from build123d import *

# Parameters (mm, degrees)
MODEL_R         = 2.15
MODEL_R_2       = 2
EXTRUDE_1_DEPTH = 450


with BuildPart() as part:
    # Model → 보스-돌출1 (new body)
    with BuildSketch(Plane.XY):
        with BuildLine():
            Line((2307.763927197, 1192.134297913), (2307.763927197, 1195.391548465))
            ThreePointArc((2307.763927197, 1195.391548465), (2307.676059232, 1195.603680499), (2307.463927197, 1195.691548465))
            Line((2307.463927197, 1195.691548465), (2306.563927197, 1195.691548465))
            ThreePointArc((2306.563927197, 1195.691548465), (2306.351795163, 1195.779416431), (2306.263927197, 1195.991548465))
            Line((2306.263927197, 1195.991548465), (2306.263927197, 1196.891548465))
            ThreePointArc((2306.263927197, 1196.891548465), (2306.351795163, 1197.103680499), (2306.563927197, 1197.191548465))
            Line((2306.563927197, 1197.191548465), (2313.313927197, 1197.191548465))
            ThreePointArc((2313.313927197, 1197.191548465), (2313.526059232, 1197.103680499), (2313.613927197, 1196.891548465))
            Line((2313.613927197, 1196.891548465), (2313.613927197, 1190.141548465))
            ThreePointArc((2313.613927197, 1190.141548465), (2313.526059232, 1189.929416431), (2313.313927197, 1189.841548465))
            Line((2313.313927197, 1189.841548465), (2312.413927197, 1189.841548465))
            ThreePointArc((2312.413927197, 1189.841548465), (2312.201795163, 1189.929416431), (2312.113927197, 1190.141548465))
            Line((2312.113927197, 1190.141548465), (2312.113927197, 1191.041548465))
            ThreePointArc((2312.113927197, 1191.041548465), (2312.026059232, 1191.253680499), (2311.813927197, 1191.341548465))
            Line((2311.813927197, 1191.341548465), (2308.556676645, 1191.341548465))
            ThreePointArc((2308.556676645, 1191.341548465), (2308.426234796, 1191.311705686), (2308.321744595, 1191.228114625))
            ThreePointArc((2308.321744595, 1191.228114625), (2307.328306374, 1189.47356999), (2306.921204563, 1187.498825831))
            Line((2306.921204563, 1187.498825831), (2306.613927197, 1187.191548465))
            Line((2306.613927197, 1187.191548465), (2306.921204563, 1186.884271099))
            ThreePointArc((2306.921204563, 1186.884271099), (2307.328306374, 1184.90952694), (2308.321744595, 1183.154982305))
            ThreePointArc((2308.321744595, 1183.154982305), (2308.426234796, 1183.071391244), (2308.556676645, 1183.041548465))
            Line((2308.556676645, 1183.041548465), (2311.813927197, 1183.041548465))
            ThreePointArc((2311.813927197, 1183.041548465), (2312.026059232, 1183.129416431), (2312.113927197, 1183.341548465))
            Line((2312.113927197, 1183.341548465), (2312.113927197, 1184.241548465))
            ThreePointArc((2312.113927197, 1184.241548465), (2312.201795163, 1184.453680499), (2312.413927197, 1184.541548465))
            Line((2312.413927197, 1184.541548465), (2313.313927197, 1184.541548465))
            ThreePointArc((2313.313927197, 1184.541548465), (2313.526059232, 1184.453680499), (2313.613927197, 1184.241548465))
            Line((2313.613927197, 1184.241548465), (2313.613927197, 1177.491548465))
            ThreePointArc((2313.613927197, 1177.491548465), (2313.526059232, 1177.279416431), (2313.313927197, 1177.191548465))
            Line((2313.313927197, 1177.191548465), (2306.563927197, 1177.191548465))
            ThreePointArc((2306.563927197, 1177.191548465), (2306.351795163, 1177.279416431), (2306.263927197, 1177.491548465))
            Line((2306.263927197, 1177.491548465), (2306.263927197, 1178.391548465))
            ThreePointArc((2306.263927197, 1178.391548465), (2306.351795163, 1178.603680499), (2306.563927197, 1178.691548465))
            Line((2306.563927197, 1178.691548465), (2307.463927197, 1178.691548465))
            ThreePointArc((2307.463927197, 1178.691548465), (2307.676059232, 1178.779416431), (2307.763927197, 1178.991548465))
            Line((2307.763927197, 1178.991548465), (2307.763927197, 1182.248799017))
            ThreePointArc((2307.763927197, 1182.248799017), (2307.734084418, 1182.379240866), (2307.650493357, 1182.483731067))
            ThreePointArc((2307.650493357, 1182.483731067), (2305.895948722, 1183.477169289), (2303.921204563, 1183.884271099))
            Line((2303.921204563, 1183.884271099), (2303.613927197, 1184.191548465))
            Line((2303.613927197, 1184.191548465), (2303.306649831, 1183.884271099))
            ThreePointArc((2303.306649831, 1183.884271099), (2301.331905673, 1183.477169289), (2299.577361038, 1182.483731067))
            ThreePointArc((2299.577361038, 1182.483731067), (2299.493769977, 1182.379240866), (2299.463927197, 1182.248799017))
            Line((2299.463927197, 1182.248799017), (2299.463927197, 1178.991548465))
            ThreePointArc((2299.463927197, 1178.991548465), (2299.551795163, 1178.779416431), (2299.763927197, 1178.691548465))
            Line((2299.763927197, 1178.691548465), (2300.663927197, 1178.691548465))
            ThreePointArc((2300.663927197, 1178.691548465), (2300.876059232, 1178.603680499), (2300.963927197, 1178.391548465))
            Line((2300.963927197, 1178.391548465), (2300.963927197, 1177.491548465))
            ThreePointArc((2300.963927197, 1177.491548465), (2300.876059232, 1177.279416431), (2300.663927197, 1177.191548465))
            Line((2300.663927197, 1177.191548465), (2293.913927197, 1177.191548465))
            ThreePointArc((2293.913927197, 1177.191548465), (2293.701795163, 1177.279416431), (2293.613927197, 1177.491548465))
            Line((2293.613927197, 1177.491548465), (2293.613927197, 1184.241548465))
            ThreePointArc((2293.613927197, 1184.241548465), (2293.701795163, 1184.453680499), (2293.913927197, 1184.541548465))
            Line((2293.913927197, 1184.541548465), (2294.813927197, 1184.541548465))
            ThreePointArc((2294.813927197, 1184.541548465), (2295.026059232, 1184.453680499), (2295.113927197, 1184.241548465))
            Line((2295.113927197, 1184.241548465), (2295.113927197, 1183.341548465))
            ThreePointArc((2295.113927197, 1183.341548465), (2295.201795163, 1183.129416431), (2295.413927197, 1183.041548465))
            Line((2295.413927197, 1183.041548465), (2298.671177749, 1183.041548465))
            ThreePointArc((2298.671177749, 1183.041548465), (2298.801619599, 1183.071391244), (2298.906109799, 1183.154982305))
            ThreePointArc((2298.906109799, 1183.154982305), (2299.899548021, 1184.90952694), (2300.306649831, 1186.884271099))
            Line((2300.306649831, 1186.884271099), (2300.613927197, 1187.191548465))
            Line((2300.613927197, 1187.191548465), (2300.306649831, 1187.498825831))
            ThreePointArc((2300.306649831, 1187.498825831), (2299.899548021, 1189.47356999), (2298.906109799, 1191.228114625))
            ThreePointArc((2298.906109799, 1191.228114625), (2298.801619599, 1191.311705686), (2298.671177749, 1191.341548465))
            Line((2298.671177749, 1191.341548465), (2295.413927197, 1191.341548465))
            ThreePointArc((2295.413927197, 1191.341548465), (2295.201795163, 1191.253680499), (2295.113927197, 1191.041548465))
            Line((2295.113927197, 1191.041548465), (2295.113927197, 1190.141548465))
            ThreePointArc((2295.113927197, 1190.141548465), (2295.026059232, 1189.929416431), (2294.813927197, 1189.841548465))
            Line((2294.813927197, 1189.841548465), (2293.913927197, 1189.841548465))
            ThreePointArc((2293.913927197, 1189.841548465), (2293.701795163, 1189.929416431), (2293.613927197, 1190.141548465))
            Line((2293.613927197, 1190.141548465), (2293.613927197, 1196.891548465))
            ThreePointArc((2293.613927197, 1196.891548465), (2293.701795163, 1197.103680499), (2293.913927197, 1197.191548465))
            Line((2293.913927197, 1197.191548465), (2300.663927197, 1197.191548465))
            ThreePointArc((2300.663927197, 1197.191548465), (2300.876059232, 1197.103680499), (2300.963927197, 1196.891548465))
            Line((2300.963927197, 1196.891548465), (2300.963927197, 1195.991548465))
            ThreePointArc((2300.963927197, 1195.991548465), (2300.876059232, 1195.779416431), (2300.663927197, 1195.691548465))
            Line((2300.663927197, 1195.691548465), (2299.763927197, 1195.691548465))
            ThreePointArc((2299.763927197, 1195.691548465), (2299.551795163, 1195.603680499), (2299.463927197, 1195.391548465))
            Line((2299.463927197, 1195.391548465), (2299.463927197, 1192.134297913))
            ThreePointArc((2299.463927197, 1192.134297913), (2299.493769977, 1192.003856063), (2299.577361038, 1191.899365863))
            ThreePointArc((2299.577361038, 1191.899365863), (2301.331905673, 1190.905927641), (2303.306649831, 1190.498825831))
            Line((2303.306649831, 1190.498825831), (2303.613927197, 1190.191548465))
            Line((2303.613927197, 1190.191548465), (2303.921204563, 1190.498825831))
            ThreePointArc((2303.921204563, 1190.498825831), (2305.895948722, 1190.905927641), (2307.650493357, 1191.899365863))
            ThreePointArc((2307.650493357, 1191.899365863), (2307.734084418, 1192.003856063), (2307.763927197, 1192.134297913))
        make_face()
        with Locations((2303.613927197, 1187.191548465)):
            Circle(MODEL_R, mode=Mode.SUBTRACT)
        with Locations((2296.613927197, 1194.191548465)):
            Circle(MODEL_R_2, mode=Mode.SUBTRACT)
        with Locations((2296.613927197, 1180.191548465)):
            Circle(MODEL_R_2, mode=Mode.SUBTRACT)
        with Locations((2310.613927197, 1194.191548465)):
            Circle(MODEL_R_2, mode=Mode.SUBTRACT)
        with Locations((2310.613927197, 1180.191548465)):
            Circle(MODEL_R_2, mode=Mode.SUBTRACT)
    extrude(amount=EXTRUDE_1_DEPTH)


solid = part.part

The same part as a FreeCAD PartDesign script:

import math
import FreeCAD as App
import Part
import Sketcher
from FreeCAD import Vector

doc = App.newDocument("Part")
body = doc.addObject("PartDesign::Body", "Body")

sketch1 = doc.addObject("Sketcher::SketchObject", "Sketch")
body.addObject(sketch1)
sketch1.AttachmentSupport = (doc.XY_Plane, [""])
sketch1.MapMode = "FlatFace"
sketch1.addGeometry(Part.LineSegment(Vector(2307.763927, 1195.391548, 0), Vector(2307.763927, 1192.134298, 0)), False)
sketch1.addGeometry(Part.ArcOfCircle(Part.Circle(Vector(2307.463927, 1192.134298, 0), Vector(0, 0, 1), 0.3), math.radians(-51.545921), math.radians(0)), False)
sketch1.addGeometry(Part.ArcOfCircle(Part.Circle(Vector(2303.613927, 1196.982382, 0), Vector(0, 0, 1), 6.490833), math.radians(-87.286592), math.radians(-51.545921)), False)
sketch1.addGeometry(Part.LineSegment(Vector(2303.921205, 1190.498826, 0), Vector(2303.613927, 1190.191548, 0)), False)
sketch1.addGeometry(Part.LineSegment(Vector(2303.613927, 1190.191548, 0), Vector(2303.30665, 1190.498826, 0)), False)
sketch1.addGeometry(Part.ArcOfCircle(Part.Circle(Vector(2303.613927, 1196.982382, 0), Vector(0, 0, 1), 6.490833), math.radians(-128.454079), math.radians(-92.713408)), False)
sketch1.addGeometry(Part.ArcOfCircle(Part.Circle(Vector(2299.763927, 1192.134298, 0), Vector(0, 0, 1), 0.3), math.radians(-180), math.radians(-128.454079)), False)
sketch1.addGeometry(Part.LineSegment(Vector(2299.463927, 1192.134298, 0), Vector(2299.463927, 1195.391548, 0)), False)
sketch1.addGeometry(Part.ArcOfCircle(Part.Circle(Vector(2299.763927, 1195.391548, 0), Vector(0, 0, 1), 0.3), math.radians(90), math.radians(180)), False)
sketch1.addGeometry(Part.LineSegment(Vector(2299.763927, 1195.691548, 0), Vector(2300.663927, 1195.691548, 0)), False)
sketch1.addGeometry(Part.ArcOfCircle(Part.Circle(Vector(2300.663927, 1195.991548, 0), Vector(0, 0, 1), 0.3), math.radians(-90), math.radians(0)), False)
sketch1.addGeometry(Part.LineSegment(Vector(2300.963927, 1195.991548, 0), Vector(2300.963927, 1196.891548, 0)), False)
sketch1.addGeometry(Part.ArcOfCircle(Part.Circle(Vector(2300.663927, 1196.891548, 0), Vector(0, 0, 1), 0.3), math.radians(0), math.radians(90)), False)
sketch1.addGeometry(Part.LineSegment(Vector(2300.663927, 1197.191548, 0), Vector(2293.913927, 1197.191548, 0)), False)
sketch1.addGeometry(Part.ArcOfCircle(Part.Circle(Vector(2293.913927, 1196.891548, 0), Vector(0, 0, 1), 0.3), math.radians(90), math.radians(180)), False)
sketch1.addGeometry(Part.LineSegment(Vector(2293.613927, 1196.891548, 0), Vector(2293.613927, 1190.141548, 0)), False)
sketch1.addGeometry(Part.ArcOfCircle(Part.Circle(Vector(2293.913927, 1190.141548, 0), Vector(0, 0, 1), 0.3), math.radians(-180), math.radians(-90)), False)
sketch1.addGeometry(Part.LineSegment(Vector(2293.913927, 1189.841548, 0), Vector(2294.813927, 1189.841548, 0)), False)
sketch1.addGeometry(Part.ArcOfCircle(Part.Circle(Vector(2294.813927, 1190.141548, 0), Vector(0, 0, 1), 0.3), math.radians(-90), math.radians(0)), False)
sketch1.addGeometry(Part.LineSegment(Vector(2295.113927, 1190.141548, 0), Vector(2295.113927, 1191.041548, 0)), False)
sketch1.addGeometry(Part.ArcOfCircle(Part.Circle(Vector(2295.413927, 1191.041548, 0), Vector(0, 0, 1), 0.3), math.radians(90), math.radians(180)), False)
sketch1.addGeometry(Part.LineSegment(Vector(2295.413927, 1191.341548, 0), Vector(2298.671178, 1191.341548, 0)), False)
sketch1.addGeometry(Part.ArcOfCircle(Part.Circle(Vector(2298.671178, 1191.041548, 0), Vector(0, 0, 1), 0.3), math.radians(38.454079), math.radians(90)), False)
sketch1.addGeometry(Part.ArcOfCircle(Part.Circle(Vector(2293.823094, 1187.191548, 0), Vector(0, 0, 1), 6.490833), math.radians(2.713408), math.radians(38.454079)), False)
sketch1.addGeometry(Part.LineSegment(Vector(2300.30665, 1187.498826, 0), Vector(2300.613927, 1187.191548, 0)), False)
sketch1.addGeometry(Part.LineSegment(Vector(2300.613927, 1187.191548, 0), Vector(2300.30665, 1186.884271, 0)), False)
sketch1.addGeometry(Part.ArcOfCircle(Part.Circle(Vector(2293.823094, 1187.191548, 0), Vector(0, 0, 1), 6.490833), math.radians(-38.454079), math.radians(-2.713408)), False)
sketch1.addGeometry(Part.ArcOfCircle(Part.Circle(Vector(2298.671178, 1183.341548, 0), Vector(0, 0, 1), 0.3), math.radians(-90), math.radians(-38.454079)), False)
sketch1.addGeometry(Part.LineSegment(Vector(2298.671178, 1183.041548, 0), Vector(2295.413927, 1183.041548, 0)), False)
sketch1.addGeometry(Part.ArcOfCircle(Part.Circle(Vector(2295.413927, 1183.341548, 0), Vector(0, 0, 1), 0.3), math.radians(-180), math.radians(-90)), False)
sketch1.addGeometry(Part.LineSegment(Vector(2295.113927, 1183.341548, 0), Vector(2295.113927, 1184.241548, 0)), False)
sketch1.addGeometry(Part.ArcOfCircle(Part.Circle(Vector(2294.813927, 1184.241548, 0), Vector(0, 0, 1), 0.3), math.radians(0), math.radians(90)), False)
sketch1.addGeometry(Part.LineSegment(Vector(2294.813927, 1184.541548, 0), Vector(2293.913927, 1184.541548, 0)), False)
sketch1.addGeometry(Part.ArcOfCircle(Part.Circle(Vector(2293.913927, 1184.241548, 0), Vector(0, 0, 1), 0.3), math.radians(90), math.radians(180)), False)
sketch1.addGeometry(Part.LineSegment(Vector(2293.613927, 1184.241548, 0), Vector(2293.613927, 1177.491548, 0)), False)
sketch1.addGeometry(Part.ArcOfCircle(Part.Circle(Vector(2293.913927, 1177.491548, 0), Vector(0, 0, 1), 0.3), math.radians(-180), math.radians(-90)), False)
sketch1.addGeometry(Part.LineSegment(Vector(2293.913927, 1177.191548, 0), Vector(2300.663927, 1177.191548, 0)), False)
sketch1.addGeometry(Part.ArcOfCircle(Part.Circle(Vector(2300.663927, 1177.491548, 0), Vector(0, 0, 1), 0.3), math.radians(-90), math.radians(0)), False)
sketch1.addGeometry(Part.LineSegment(Vector(2300.963927, 1177.491548, 0), Vector(2300.963927, 1178.391548, 0)), False)
sketch1.addGeometry(Part.ArcOfCircle(Part.Circle(Vector(2300.663927, 1178.391548, 0), Vector(0, 0, 1), 0.3), math.radians(0), math.radians(90)), False)
sketch1.addGeometry(Part.LineSegment(Vector(2300.663927, 1178.691548, 0), Vector(2299.763927, 1178.691548, 0)), False)
sketch1.addGeometry(Part.ArcOfCircle(Part.Circle(Vector(2299.763927, 1178.991548, 0), Vector(0, 0, 1), 0.3), math.radians(-180), math.radians(-90)), False)
sketch1.addGeometry(Part.LineSegment(Vector(2299.463927, 1178.991548, 0), Vector(2299.463927, 1182.248799, 0)), False)
sketch1.addGeometry(Part.ArcOfCircle(Part.Circle(Vector(2299.763927, 1182.248799, 0), Vector(0, 0, 1), 0.3), math.radians(128.45408), math.radians(179.999999)), False)
sketch1.addGeometry(Part.ArcOfCircle(Part.Circle(Vector(2303.613927, 1177.400715, 0), Vector(0, 0, 1), 6.490833), math.radians(92.713408), math.radians(128.454079)), False)
sketch1.addGeometry(Part.LineSegment(Vector(2303.30665, 1183.884271, 0), Vector(2303.613927, 1184.191548, 0)), False)
sketch1.addGeometry(Part.LineSegment(Vector(2303.613927, 1184.191548, 0), Vector(2303.921205, 1183.884271, 0)), False)
sketch1.addGeometry(Part.ArcOfCircle(Part.Circle(Vector(2303.613927, 1177.400715, 0), Vector(0, 0, 1), 6.490833), math.radians(51.545921), math.radians(87.286592)), False)
sketch1.addGeometry(Part.ArcOfCircle(Part.Circle(Vector(2307.463927, 1182.248799, 0), Vector(0, 0, 1), 0.3), math.radians(0), math.radians(51.545921)), False)
sketch1.addGeometry(Part.LineSegment(Vector(2307.763927, 1182.248799, 0), Vector(2307.763927, 1178.991548, 0)), False)
sketch1.addGeometry(Part.ArcOfCircle(Part.Circle(Vector(2307.463927, 1178.991548, 0), Vector(0, 0, 1), 0.3), math.radians(-90), math.radians(0)), False)
sketch1.addGeometry(Part.LineSegment(Vector(2307.463927, 1178.691548, 0), Vector(2306.563927, 1178.691548, 0)), False)
sketch1.addGeometry(Part.ArcOfCircle(Part.Circle(Vector(2306.563927, 1178.391548, 0), Vector(0, 0, 1), 0.3), math.radians(90), math.radians(180)), False)
sketch1.addGeometry(Part.LineSegment(Vector(2306.263927, 1178.391548, 0), Vector(2306.263927, 1177.491548, 0)), False)
sketch1.addGeometry(Part.ArcOfCircle(Part.Circle(Vector(2306.563927, 1177.491548, 0), Vector(0, 0, 1), 0.3), math.radians(-180), math.radians(-90)), False)
sketch1.addGeometry(Part.LineSegment(Vector(2306.563927, 1177.191548, 0), Vector(2313.313927, 1177.191548, 0)), False)
sketch1.addGeometry(Part.ArcOfCircle(Part.Circle(Vector(2313.313927, 1177.491548, 0), Vector(0, 0, 1), 0.3), math.radians(-90), math.radians(0)), False)
sketch1.addGeometry(Part.LineSegment(Vector(2313.613927, 1177.491548, 0), Vector(2313.613927, 1184.241548, 0)), False)
sketch1.addGeometry(Part.ArcOfCircle(Part.Circle(Vector(2313.313927, 1184.241548, 0), Vector(0, 0, 1), 0.3), math.radians(0), math.radians(90)), False)
sketch1.addGeometry(Part.LineSegment(Vector(2313.313927, 1184.541548, 0), Vector(2312.413927, 1184.541548, 0)), False)
sketch1.addGeometry(Part.ArcOfCircle(Part.Circle(Vector(2312.413927, 1184.241548, 0), Vector(0, 0, 1), 0.3), math.radians(90), math.radians(180)), False)
sketch1.addGeometry(Part.LineSegment(Vector(2312.113927, 1184.241548, 0), Vector(2312.113927, 1183.341548, 0)), False)
sketch1.addGeometry(Part.ArcOfCircle(Part.Circle(Vector(2311.813927, 1183.341548, 0), Vector(0, 0, 1), 0.3), math.radians(-90), math.radians(0)), False)
sketch1.addGeometry(Part.LineSegment(Vector(2311.813927, 1183.041548, 0), Vector(2308.556677, 1183.041548, 0)), False)
sketch1.addGeometry(Part.ArcOfCircle(Part.Circle(Vector(2308.556677, 1183.341548, 0), Vector(0, 0, 1), 0.3), math.radians(-141.545921), math.radians(-90)), False)
sketch1.addGeometry(Part.ArcOfCircle(Part.Circle(Vector(2313.404761, 1187.191548, 0), Vector(0, 0, 1), 6.490833), math.radians(-177.286592), math.radians(-141.545921)), False)
sketch1.addGeometry(Part.LineSegment(Vector(2306.921205, 1186.884271, 0), Vector(2306.613927, 1187.191548, 0)), False)
sketch1.addGeometry(Part.LineSegment(Vector(2306.613927, 1187.191548, 0), Vector(2306.921205, 1187.498826, 0)), False)
sketch1.addGeometry(Part.ArcOfCircle(Part.Circle(Vector(2313.404761, 1187.191548, 0), Vector(0, 0, 1), 6.490833), math.radians(141.545921), math.radians(177.286592)), False)
sketch1.addGeometry(Part.ArcOfCircle(Part.Circle(Vector(2308.556677, 1191.041548, 0), Vector(0, 0, 1), 0.3), math.radians(90), math.radians(141.545921)), False)
sketch1.addGeometry(Part.LineSegment(Vector(2308.556677, 1191.341548, 0), Vector(2311.813927, 1191.341548, 0)), False)
sketch1.addGeometry(Part.ArcOfCircle(Part.Circle(Vector(2311.813927, 1191.041548, 0), Vector(0, 0, 1), 0.3), math.radians(0), math.radians(90)), False)
sketch1.addGeometry(Part.LineSegment(Vector(2312.113927, 1191.041548, 0), Vector(2312.113927, 1190.141548, 0)), False)
sketch1.addGeometry(Part.ArcOfCircle(Part.Circle(Vector(2312.413927, 1190.141548, 0), Vector(0, 0, 1), 0.3), math.radians(-180), math.radians(-90)), False)
sketch1.addGeometry(Part.LineSegment(Vector(2312.413927, 1189.841548, 0), Vector(2313.313927, 1189.841548, 0)), False)
sketch1.addGeometry(Part.ArcOfCircle(Part.Circle(Vector(2313.313927, 1190.141548, 0), Vector(0, 0, 1), 0.3), math.radians(-90), math.radians(0)), False)
sketch1.addGeometry(Part.LineSegment(Vector(2313.613927, 1190.141548, 0), Vector(2313.613927, 1196.891548, 0)), False)
sketch1.addGeometry(Part.ArcOfCircle(Part.Circle(Vector(2313.313927, 1196.891548, 0), Vector(0, 0, 1), 0.3), math.radians(0), math.radians(90)), False)
sketch1.addGeometry(Part.LineSegment(Vector(2313.313927, 1197.191548, 0), Vector(2306.563927, 1197.191548, 0)), False)
sketch1.addGeometry(Part.ArcOfCircle(Part.Circle(Vector(2306.563927, 1196.891548, 0), Vector(0, 0, 1), 0.3), math.radians(90), math.radians(180)), False)
sketch1.addGeometry(Part.LineSegment(Vector(2306.263927, 1196.891548, 0), Vector(2306.263927, 1195.991548, 0)), False)
sketch1.addGeometry(Part.ArcOfCircle(Part.Circle(Vector(2306.563927, 1195.991548, 0), Vector(0, 0, 1), 0.3), math.radians(-180), math.radians(-90)), False)
sketch1.addGeometry(Part.LineSegment(Vector(2306.563927, 1195.691548, 0), Vector(2307.463927, 1195.691548, 0)), False)
sketch1.addGeometry(Part.ArcOfCircle(Part.Circle(Vector(2307.463927, 1195.391548, 0), Vector(0, 0, 1), 0.3), math.radians(0), math.radians(90)), False)
sketch1.addGeometry(Part.Circle(Vector(2310.613927, 1180.191548, 0), Vector(0, 0, 1), 2), False)
sketch1.addGeometry(Part.Circle(Vector(2296.613927, 1180.191548, 0), Vector(0, 0, 1), 2), False)
sketch1.addGeometry(Part.Circle(Vector(2310.613927, 1194.191548, 0), Vector(0, 0, 1), 2), False)
sketch1.addGeometry(Part.Circle(Vector(2303.613927, 1187.191548, 0), Vector(0, 0, 1), 2.15), False)
sketch1.addGeometry(Part.Circle(Vector(2296.613927, 1194.191548, 0), Vector(0, 0, 1), 2), False)
sketch1.addConstraint(Sketcher.Constraint("Tangent", 0, 2, 1, 2))
sketch1.addConstraint(Sketcher.Constraint("Tangent", 1, 1, 2, 2))
sketch1.addConstraint(Sketcher.Constraint("Coincident", 2, 1, 3, 1))
sketch1.addConstraint(Sketcher.Constraint("Coincident", 3, 2, 4, 1))
sketch1.addConstraint(Sketcher.Constraint("Coincident", 4, 2, 5, 2))
sketch1.addConstraint(Sketcher.Constraint("Tangent", 5, 1, 6, 2))
sketch1.addConstraint(Sketcher.Constraint("Tangent", 6, 1, 7, 1))
sketch1.addConstraint(Sketcher.Constraint("Tangent", 7, 2, 8, 2))
sketch1.addConstraint(Sketcher.Constraint("Tangent", 8, 1, 9, 1))
sketch1.addConstraint(Sketcher.Constraint("Tangent", 9, 2, 10, 1))
sketch1.addConstraint(Sketcher.Constraint("Tangent", 10, 2, 11, 1))
sketch1.addConstraint(Sketcher.Constraint("Tangent", 11, 2, 12, 1))
sketch1.addConstraint(Sketcher.Constraint("Tangent", 12, 2, 13, 1))
sketch1.addConstraint(Sketcher.Constraint("Tangent", 13, 2, 14, 1))
sketch1.addConstraint(Sketcher.Constraint("Tangent", 14, 2, 15, 1))
sketch1.addConstraint(Sketcher.Constraint("Tangent", 15, 2, 16, 1))
sketch1.addConstraint(Sketcher.Constraint("Tangent", 16, 2, 17, 1))
sketch1.addConstraint(Sketcher.Constraint("Tangent", 17, 2, 18, 1))
sketch1.addConstraint(Sketcher.Constraint("Tangent", 18, 2, 19, 1))
sketch1.addConstraint(Sketcher.Constraint("Tangent", 19, 2, 20, 2))
sketch1.addConstraint(Sketcher.Constraint("Tangent", 20, 1, 21, 1))
sketch1.addConstraint(Sketcher.Constraint("Tangent", 21, 2, 22, 2))
sketch1.addConstraint(Sketcher.Constraint("Tangent", 22, 1, 23, 2))
sketch1.addConstraint(Sketcher.Constraint("Coincident", 23, 1, 24, 1))
sketch1.addConstraint(Sketcher.Constraint("Coincident", 24, 2, 25, 1))
sketch1.addConstraint(Sketcher.Constraint("Coincident", 25, 2, 26, 2))
sketch1.addConstraint(Sketcher.Constraint("Tangent", 26, 1, 27, 2))
sketch1.addConstraint(Sketcher.Constraint("Tangent", 27, 1, 28, 1))
sketch1.addConstraint(Sketcher.Constraint("Tangent", 28, 2, 29, 2))
sketch1.addConstraint(Sketcher.Constraint("Tangent", 29, 1, 30, 1))
sketch1.addConstraint(Sketcher.Constraint("Tangent", 30, 2, 31, 1))
sketch1.addConstraint(Sketcher.Constraint("Tangent", 31, 2, 32, 1))
sketch1.addConstraint(Sketcher.Constraint("Tangent", 32, 2, 33, 1))
sketch1.addConstraint(Sketcher.Constraint("Tangent", 33, 2, 34, 1))
sketch1.addConstraint(Sketcher.Constraint("Tangent", 34, 2, 35, 1))
sketch1.addConstraint(Sketcher.Constraint("Tangent", 35, 2, 36, 1))
sketch1.addConstraint(Sketcher.Constraint("Tangent", 36, 2, 37, 1))
sketch1.addConstraint(Sketcher.Constraint("Tangent", 37, 2, 38, 1))
sketch1.addConstraint(Sketcher.Constraint("Tangent", 38, 2, 39, 1))
sketch1.addConstraint(Sketcher.Constraint("Tangent", 39, 2, 40, 1))
sketch1.addConstraint(Sketcher.Constraint("Tangent", 40, 2, 41, 2))
sketch1.addConstraint(Sketcher.Constraint("Tangent", 41, 1, 42, 1))
sketch1.addConstraint(Sketcher.Constraint("Tangent", 42, 2, 43, 2))
sketch1.addConstraint(Sketcher.Constraint("Tangent", 43, 1, 44, 2))
sketch1.addConstraint(Sketcher.Constraint("Coincident", 44, 1, 45, 1))
sketch1.addConstraint(Sketcher.Constraint("Coincident", 45, 2, 46, 1))
sketch1.addConstraint(Sketcher.Constraint("Coincident", 46, 2, 47, 2))
sketch1.addConstraint(Sketcher.Constraint("Tangent", 47, 1, 48, 2))
sketch1.addConstraint(Sketcher.Constraint("Tangent", 48, 1, 49, 1))
sketch1.addConstraint(Sketcher.Constraint("Tangent", 49, 2, 50, 2))
sketch1.addConstraint(Sketcher.Constraint("Tangent", 50, 1, 51, 1))
sketch1.addConstraint(Sketcher.Constraint("Tangent", 51, 2, 52, 1))
sketch1.addConstraint(Sketcher.Constraint("Tangent", 52, 2, 53, 1))
sketch1.addConstraint(Sketcher.Constraint("Tangent", 53, 2, 54, 1))
sketch1.addConstraint(Sketcher.Constraint("Tangent", 54, 2, 55, 1))
sketch1.addConstraint(Sketcher.Constraint("Tangent", 55, 2, 56, 1))
sketch1.addConstraint(Sketcher.Constraint("Tangent", 56, 2, 57, 1))
sketch1.addConstraint(Sketcher.Constraint("Tangent", 57, 2, 58, 1))
sketch1.addConstraint(Sketcher.Constraint("Tangent", 58, 2, 59, 1))
sketch1.addConstraint(Sketcher.Constraint("Tangent", 59, 2, 60, 1))
sketch1.addConstraint(Sketcher.Constraint("Tangent", 60, 2, 61, 1))
sketch1.addConstraint(Sketcher.Constraint("Tangent", 61, 2, 62, 2))
sketch1.addConstraint(Sketcher.Constraint("Tangent", 62, 1, 63, 1))
sketch1.addConstraint(Sketcher.Constraint("Tangent", 63, 2, 64, 2))
sketch1.addConstraint(Sketcher.Constraint("Tangent", 64, 1, 65, 2))
sketch1.addConstraint(Sketcher.Constraint("Coincident", 65, 1, 66, 1))
sketch1.addConstraint(Sketcher.Constraint("Coincident", 66, 2, 67, 1))
sketch1.addConstraint(Sketcher.Constraint("Coincident", 67, 2, 68, 2))
sketch1.addConstraint(Sketcher.Constraint("Tangent", 68, 1, 69, 2))
sketch1.addConstraint(Sketcher.Constraint("Tangent", 69, 1, 70, 1))
sketch1.addConstraint(Sketcher.Constraint("Tangent", 70, 2, 71, 2))
sketch1.addConstraint(Sketcher.Constraint("Tangent", 71, 1, 72, 1))
sketch1.addConstraint(Sketcher.Constraint("Tangent", 72, 2, 73, 1))
sketch1.addConstraint(Sketcher.Constraint("Tangent", 73, 2, 74, 1))
sketch1.addConstraint(Sketcher.Constraint("Tangent", 74, 2, 75, 1))
sketch1.addConstraint(Sketcher.Constraint("Tangent", 75, 2, 76, 1))
sketch1.addConstraint(Sketcher.Constraint("Tangent", 76, 2, 77, 1))
sketch1.addConstraint(Sketcher.Constraint("Tangent", 77, 2, 78, 1))
sketch1.addConstraint(Sketcher.Constraint("Tangent", 78, 2, 79, 1))
sketch1.addConstraint(Sketcher.Constraint("Tangent", 79, 2, 80, 1))
sketch1.addConstraint(Sketcher.Constraint("Tangent", 80, 2, 81, 1))
sketch1.addConstraint(Sketcher.Constraint("Tangent", 81, 2, 82, 1))
sketch1.addConstraint(Sketcher.Constraint("Tangent", 82, 2, 83, 2))
sketch1.addConstraint(Sketcher.Constraint("Tangent", 83, 1, 0, 1))
sketch1.addConstraint(Sketcher.Constraint("Vertical", 0))
sketch1.addConstraint(Sketcher.Constraint("Vertical", 7))
sketch1.addConstraint(Sketcher.Constraint("Horizontal", 9))
sketch1.addConstraint(Sketcher.Constraint("Vertical", 11))
sketch1.addConstraint(Sketcher.Constraint("Horizontal", 13))
sketch1.addConstraint(Sketcher.Constraint("Vertical", 15))
sketch1.addConstraint(Sketcher.Constraint("Horizontal", 17))
sketch1.addConstraint(Sketcher.Constraint("Vertical", 19))
sketch1.addConstraint(Sketcher.Constraint("Horizontal", 21))
sketch1.addConstraint(Sketcher.Constraint("Horizontal", 28))
sketch1.addConstraint(Sketcher.Constraint("Vertical", 30))
sketch1.addConstraint(Sketcher.Constraint("Horizontal", 32))
sketch1.addConstraint(Sketcher.Constraint("Vertical", 34))
sketch1.addConstraint(Sketcher.Constraint("Horizontal", 36))
sketch1.addConstraint(Sketcher.Constraint("Vertical", 38))
sketch1.addConstraint(Sketcher.Constraint("Horizontal", 40))
sketch1.addConstraint(Sketcher.Constraint("Vertical", 42))
sketch1.addConstraint(Sketcher.Constraint("Vertical", 49))
sketch1.addConstraint(Sketcher.Constraint("Horizontal", 51))
sketch1.addConstraint(Sketcher.Constraint("Vertical", 53))
sketch1.addConstraint(Sketcher.Constraint("Horizontal", 55))
sketch1.addConstraint(Sketcher.Constraint("Vertical", 57))
sketch1.addConstraint(Sketcher.Constraint("Horizontal", 59))
sketch1.addConstraint(Sketcher.Constraint("Vertical", 61))
sketch1.addConstraint(Sketcher.Constraint("Horizontal", 63))
sketch1.addConstraint(Sketcher.Constraint("Horizontal", 70))
sketch1.addConstraint(Sketcher.Constraint("Vertical", 72))
sketch1.addConstraint(Sketcher.Constraint("Horizontal", 74))
sketch1.addConstraint(Sketcher.Constraint("Vertical", 76))
sketch1.addConstraint(Sketcher.Constraint("Horizontal", 78))
sketch1.addConstraint(Sketcher.Constraint("Vertical", 80))
sketch1.addConstraint(Sketcher.Constraint("Horizontal", 82))
sketch1.addConstraint(Sketcher.Constraint("Coincident", 5, 3, 2, 3))
sketch1.addConstraint(Sketcher.Constraint("Coincident", 26, 3, 23, 3))
sketch1.addConstraint(Sketcher.Constraint("Coincident", 47, 3, 44, 3))
sketch1.addConstraint(Sketcher.Constraint("Coincident", 68, 3, 65, 3))
sketch1.addConstraint(Sketcher.Constraint("Equal", 2, 5))
sketch1.addConstraint(Sketcher.Constraint("Equal", 1, 6))
sketch1.addConstraint(Sketcher.Constraint("Equal", 6, 8))
sketch1.addConstraint(Sketcher.Constraint("Equal", 8, 10))
sketch1.addConstraint(Sketcher.Constraint("Equal", 10, 12))
sketch1.addConstraint(Sketcher.Constraint("Equal", 12, 14))
sketch1.addConstraint(Sketcher.Constraint("Equal", 14, 16))
sketch1.addConstraint(Sketcher.Constraint("Equal", 16, 18))
sketch1.addConstraint(Sketcher.Constraint("Equal", 18, 20))
sketch1.addConstraint(Sketcher.Constraint("Equal", 20, 22))
sketch1.addConstraint(Sketcher.Constraint("Equal", 5, 23))
sketch1.addConstraint(Sketcher.Constraint("Equal", 23, 26))
sketch1.addConstraint(Sketcher.Constraint("Equal", 22, 27))
sketch1.addConstraint(Sketcher.Constraint("Equal", 27, 29))
sketch1.addConstraint(Sketcher.Constraint("Equal", 29, 31))
sketch1.addConstraint(Sketcher.Constraint("Equal", 31, 33))
sketch1.addConstraint(Sketcher.Constraint("Equal", 33, 35))
sketch1.addConstraint(Sketcher.Constraint("Equal", 35, 37))
sketch1.addConstraint(Sketcher.Constraint("Equal", 37, 39))
sketch1.addConstraint(Sketcher.Constraint("Equal", 39, 41))
sketch1.addConstraint(Sketcher.Constraint("Equal", 41, 43))
sketch1.addConstraint(Sketcher.Constraint("Equal", 26, 44))
sketch1.addConstraint(Sketcher.Constraint("Equal", 44, 47))
sketch1.addConstraint(Sketcher.Constraint("Equal", 43, 48))
sketch1.addConstraint(Sketcher.Constraint("Equal", 48, 50))
sketch1.addConstraint(Sketcher.Constraint("Equal", 50, 52))
sketch1.addConstraint(Sketcher.Constraint("Equal", 52, 54))
sketch1.addConstraint(Sketcher.Constraint("Equal", 54, 56))
sketch1.addConstraint(Sketcher.Constraint("Equal", 56, 58))
sketch1.addConstraint(Sketcher.Constraint("Equal", 58, 60))
sketch1.addConstraint(Sketcher.Constraint("Equal", 60, 62))
sketch1.addConstraint(Sketcher.Constraint("Equal", 62, 64))
sketch1.addConstraint(Sketcher.Constraint("Equal", 47, 65))
sketch1.addConstraint(Sketcher.Constraint("Equal", 65, 68))
sketch1.addConstraint(Sketcher.Constraint("Equal", 64, 69))
sketch1.addConstraint(Sketcher.Constraint("Equal", 69, 71))
sketch1.addConstraint(Sketcher.Constraint("Equal", 71, 73))
sketch1.addConstraint(Sketcher.Constraint("Equal", 73, 75))
sketch1.addConstraint(Sketcher.Constraint("Equal", 75, 77))
sketch1.addConstraint(Sketcher.Constraint("Equal", 77, 79))
sketch1.addConstraint(Sketcher.Constraint("Equal", 79, 81))
sketch1.addConstraint(Sketcher.Constraint("Equal", 81, 83))
sketch1.addConstraint(Sketcher.Constraint("Equal", 84, 85))
sketch1.addConstraint(Sketcher.Constraint("Equal", 85, 86))
sketch1.addConstraint(Sketcher.Constraint("Equal", 86, 88))
sketch1.addConstraint(Sketcher.Constraint("Perpendicular", 3, 4))
sketch1.addConstraint(Sketcher.Constraint("Parallel", 4, 24))
sketch1.addConstraint(Sketcher.Constraint("Perpendicular", 24, 25))
sketch1.addConstraint(Sketcher.Constraint("Parallel", 25, 45))
sketch1.addConstraint(Sketcher.Constraint("Perpendicular", 45, 46))
sketch1.addConstraint(Sketcher.Constraint("Parallel", 46, 66))
sketch1.addConstraint(Sketcher.Constraint("Perpendicular", 66, 67))
sketch1.addConstraint(Sketcher.Constraint("Horizontal", 1, 3, 6, 3))
sketch1.addConstraint(Sketcher.Constraint("Horizontal", 43, 3, 48, 3))
sketch1.addConstraint(Sketcher.Constraint("Horizontal", 41, 3, 50, 3))
sketch1.addConstraint(Sketcher.Constraint("Horizontal", 37, 3, 54, 3))
sketch1.addConstraint(Sketcher.Constraint("Horizontal", 33, 3, 58, 3))
sketch1.addConstraint(Sketcher.Constraint("Horizontal", 29, 3, 62, 3))
sketch1.addConstraint(Sketcher.Constraint("Horizontal", 26, 3, 65, 3))
sketch1.addConstraint(Sketcher.Constraint("Horizontal", 22, 3, 69, 3))
sketch1.addConstraint(Sketcher.Constraint("Horizontal", 18, 3, 73, 3))
sketch1.addConstraint(Sketcher.Constraint("Horizontal", 14, 3, 77, 3))
sketch1.addConstraint(Sketcher.Constraint("Horizontal", 10, 3, 81, 3))
sketch1.addConstraint(Sketcher.Constraint("Horizontal", 84, 3, 85, 3))
sketch1.addConstraint(Sketcher.Constraint("Horizontal", 68, 3, 87, 3))
sketch1.addConstraint(Sketcher.Constraint("Horizontal", 86, 3, 88, 3))
sketch1.addConstraint(Sketcher.Constraint("Horizontal", 2, 1, 4, 2))
sketch1.addConstraint(Sketcher.Constraint("Horizontal", 87, 3, 24, 2))
sketch1.addConstraint(Sketcher.Constraint("Horizontal", 44, 1, 46, 2))
sketch1.addConstraint(Sketcher.Constraint("Horizontal", 25, 2, 65, 1))
sketch1.addConstraint(Sketcher.Constraint("Horizontal", 24, 2, 66, 2))
sketch1.addConstraint(Sketcher.Constraint("Horizontal", 23, 1, 67, 2))
sketch1.addConstraint(Sketcher.Constraint("Vertical", 22, 3, 27, 3))
sketch1.addConstraint(Sketcher.Constraint("Vertical", 20, 3, 29, 3))
sketch1.addConstraint(Sketcher.Constraint("Vertical", 16, 3, 33, 3))
sketch1.addConstraint(Sketcher.Constraint("Vertical", 12, 3, 37, 3))
sketch1.addConstraint(Sketcher.Constraint("Vertical", 8, 3, 41, 3))
sketch1.addConstraint(Sketcher.Constraint("Vertical", 5, 3, 44, 3))
sketch1.addConstraint(Sketcher.Constraint("Vertical", 62, 3, 71, 3))
sketch1.addConstraint(Sketcher.Constraint("Vertical", 58, 3, 75, 3))
sketch1.addConstraint(Sketcher.Constraint("Vertical", 54, 3, 79, 3))
sketch1.addConstraint(Sketcher.Constraint("Vertical", 84, 3, 86, 3))
sketch1.addConstraint(Sketcher.Constraint("Vertical", 47, 3, 87, 3))
sketch1.addConstraint(Sketcher.Constraint("Vertical", 85, 3, 88, 3))
sketch1.addConstraint(Sketcher.Constraint("Vertical", 4, 2, 44, 1))
sketch1.addConstraint(Sketcher.Constraint("Equal", 9, 17))
sketch1.addConstraint(Sketcher.Constraint("Equal", 40, 51))
sketch1.addConstraint(Sketcher.Constraint("Equal", 36, 55))
sketch1.addConstraint(Sketcher.Constraint("Equal", 51, 59))
sketch1.addConstraint(Sketcher.Constraint("Equal", 28, 63))
sketch1.addConstraint(Sketcher.Constraint("Equal", 70, 0))
sketch1.addConstraint(Sketcher.Constraint("Equal", 82, 11))
sketch1.addConstraint(Sketcher.Constraint("Equal", 78, 15))
sketch1.addConstraint(Sketcher.Constraint("Equal", 11, 19))
sketch1.addConstraint(Sketcher.Constraint("Equal", 19, 30))
sketch1.addConstraint(Sketcher.Constraint("Equal", 15, 34))
sketch1.addConstraint(Sketcher.Constraint("Equal", 30, 38))
sketch1.addConstraint(Sketcher.Constraint("Equal", 7, 42))
sketch1.addConstraint(Sketcher.Constraint("Equal", 4, 24))
sketch1.addConstraint(Sketcher.Constraint("Diameter", 84, 4.0))
sketch1.addConstraint(Sketcher.Constraint("Diameter", 87, 4.3))
sketch1.addConstraint(Sketcher.Constraint("Radius", 1, 0.3))
sketch1.addConstraint(Sketcher.Constraint("DistanceX", 9, 1, 9, 2, 0.9))
sketch1.addConstraint(Sketcher.Constraint("DistanceX", 13, 2, 13, 1, 6.75))
sketch1.addConstraint(Sketcher.Constraint("Radius", 2, 6.490833))
sketch1.addConstraint(Sketcher.Constraint("DistanceX", 21, 1, 21, 2, 3.257251))
sketch1.addConstraint(Sketcher.Constraint("DistanceY", -1, 1, 43, 3, 1182.248799))
sketch1.addConstraint(Sketcher.Constraint("DistanceY", -1, 1, 2, 3, 1196.982382))
sketch1.addConstraint(Sketcher.Constraint("DistanceY", -1, 1, 8, 3, 1195.391548))
sketch1.addConstraint(Sketcher.Constraint("DistanceX", -1, 1, 65, 3, 2313.404761))
sketch1.addConstraint(Sketcher.Constraint("DistanceY", -1, 1, 84, 3, 1180.191548))
sketch1.addConstraint(Sketcher.Constraint("DistanceY", -1, 1, 86, 3, 1194.191548))
sketch1.addConstraint(Sketcher.Constraint("DistanceY", -1, 1, 3, 2, 1190.191548))
sketch1.addConstraint(Sketcher.Constraint("DistanceX", -1, 1, 84, 3, 2310.613927))
sketch1.addConstraint(Sketcher.Constraint("DistanceX", -1, 1, 85, 3, 2296.613927))
pad1 = doc.addObject("PartDesign::Pad", "Pad")
body.addObject(pad1)
pad1.Profile = sketch1
pad1.Length = 450

doc.recompute()
